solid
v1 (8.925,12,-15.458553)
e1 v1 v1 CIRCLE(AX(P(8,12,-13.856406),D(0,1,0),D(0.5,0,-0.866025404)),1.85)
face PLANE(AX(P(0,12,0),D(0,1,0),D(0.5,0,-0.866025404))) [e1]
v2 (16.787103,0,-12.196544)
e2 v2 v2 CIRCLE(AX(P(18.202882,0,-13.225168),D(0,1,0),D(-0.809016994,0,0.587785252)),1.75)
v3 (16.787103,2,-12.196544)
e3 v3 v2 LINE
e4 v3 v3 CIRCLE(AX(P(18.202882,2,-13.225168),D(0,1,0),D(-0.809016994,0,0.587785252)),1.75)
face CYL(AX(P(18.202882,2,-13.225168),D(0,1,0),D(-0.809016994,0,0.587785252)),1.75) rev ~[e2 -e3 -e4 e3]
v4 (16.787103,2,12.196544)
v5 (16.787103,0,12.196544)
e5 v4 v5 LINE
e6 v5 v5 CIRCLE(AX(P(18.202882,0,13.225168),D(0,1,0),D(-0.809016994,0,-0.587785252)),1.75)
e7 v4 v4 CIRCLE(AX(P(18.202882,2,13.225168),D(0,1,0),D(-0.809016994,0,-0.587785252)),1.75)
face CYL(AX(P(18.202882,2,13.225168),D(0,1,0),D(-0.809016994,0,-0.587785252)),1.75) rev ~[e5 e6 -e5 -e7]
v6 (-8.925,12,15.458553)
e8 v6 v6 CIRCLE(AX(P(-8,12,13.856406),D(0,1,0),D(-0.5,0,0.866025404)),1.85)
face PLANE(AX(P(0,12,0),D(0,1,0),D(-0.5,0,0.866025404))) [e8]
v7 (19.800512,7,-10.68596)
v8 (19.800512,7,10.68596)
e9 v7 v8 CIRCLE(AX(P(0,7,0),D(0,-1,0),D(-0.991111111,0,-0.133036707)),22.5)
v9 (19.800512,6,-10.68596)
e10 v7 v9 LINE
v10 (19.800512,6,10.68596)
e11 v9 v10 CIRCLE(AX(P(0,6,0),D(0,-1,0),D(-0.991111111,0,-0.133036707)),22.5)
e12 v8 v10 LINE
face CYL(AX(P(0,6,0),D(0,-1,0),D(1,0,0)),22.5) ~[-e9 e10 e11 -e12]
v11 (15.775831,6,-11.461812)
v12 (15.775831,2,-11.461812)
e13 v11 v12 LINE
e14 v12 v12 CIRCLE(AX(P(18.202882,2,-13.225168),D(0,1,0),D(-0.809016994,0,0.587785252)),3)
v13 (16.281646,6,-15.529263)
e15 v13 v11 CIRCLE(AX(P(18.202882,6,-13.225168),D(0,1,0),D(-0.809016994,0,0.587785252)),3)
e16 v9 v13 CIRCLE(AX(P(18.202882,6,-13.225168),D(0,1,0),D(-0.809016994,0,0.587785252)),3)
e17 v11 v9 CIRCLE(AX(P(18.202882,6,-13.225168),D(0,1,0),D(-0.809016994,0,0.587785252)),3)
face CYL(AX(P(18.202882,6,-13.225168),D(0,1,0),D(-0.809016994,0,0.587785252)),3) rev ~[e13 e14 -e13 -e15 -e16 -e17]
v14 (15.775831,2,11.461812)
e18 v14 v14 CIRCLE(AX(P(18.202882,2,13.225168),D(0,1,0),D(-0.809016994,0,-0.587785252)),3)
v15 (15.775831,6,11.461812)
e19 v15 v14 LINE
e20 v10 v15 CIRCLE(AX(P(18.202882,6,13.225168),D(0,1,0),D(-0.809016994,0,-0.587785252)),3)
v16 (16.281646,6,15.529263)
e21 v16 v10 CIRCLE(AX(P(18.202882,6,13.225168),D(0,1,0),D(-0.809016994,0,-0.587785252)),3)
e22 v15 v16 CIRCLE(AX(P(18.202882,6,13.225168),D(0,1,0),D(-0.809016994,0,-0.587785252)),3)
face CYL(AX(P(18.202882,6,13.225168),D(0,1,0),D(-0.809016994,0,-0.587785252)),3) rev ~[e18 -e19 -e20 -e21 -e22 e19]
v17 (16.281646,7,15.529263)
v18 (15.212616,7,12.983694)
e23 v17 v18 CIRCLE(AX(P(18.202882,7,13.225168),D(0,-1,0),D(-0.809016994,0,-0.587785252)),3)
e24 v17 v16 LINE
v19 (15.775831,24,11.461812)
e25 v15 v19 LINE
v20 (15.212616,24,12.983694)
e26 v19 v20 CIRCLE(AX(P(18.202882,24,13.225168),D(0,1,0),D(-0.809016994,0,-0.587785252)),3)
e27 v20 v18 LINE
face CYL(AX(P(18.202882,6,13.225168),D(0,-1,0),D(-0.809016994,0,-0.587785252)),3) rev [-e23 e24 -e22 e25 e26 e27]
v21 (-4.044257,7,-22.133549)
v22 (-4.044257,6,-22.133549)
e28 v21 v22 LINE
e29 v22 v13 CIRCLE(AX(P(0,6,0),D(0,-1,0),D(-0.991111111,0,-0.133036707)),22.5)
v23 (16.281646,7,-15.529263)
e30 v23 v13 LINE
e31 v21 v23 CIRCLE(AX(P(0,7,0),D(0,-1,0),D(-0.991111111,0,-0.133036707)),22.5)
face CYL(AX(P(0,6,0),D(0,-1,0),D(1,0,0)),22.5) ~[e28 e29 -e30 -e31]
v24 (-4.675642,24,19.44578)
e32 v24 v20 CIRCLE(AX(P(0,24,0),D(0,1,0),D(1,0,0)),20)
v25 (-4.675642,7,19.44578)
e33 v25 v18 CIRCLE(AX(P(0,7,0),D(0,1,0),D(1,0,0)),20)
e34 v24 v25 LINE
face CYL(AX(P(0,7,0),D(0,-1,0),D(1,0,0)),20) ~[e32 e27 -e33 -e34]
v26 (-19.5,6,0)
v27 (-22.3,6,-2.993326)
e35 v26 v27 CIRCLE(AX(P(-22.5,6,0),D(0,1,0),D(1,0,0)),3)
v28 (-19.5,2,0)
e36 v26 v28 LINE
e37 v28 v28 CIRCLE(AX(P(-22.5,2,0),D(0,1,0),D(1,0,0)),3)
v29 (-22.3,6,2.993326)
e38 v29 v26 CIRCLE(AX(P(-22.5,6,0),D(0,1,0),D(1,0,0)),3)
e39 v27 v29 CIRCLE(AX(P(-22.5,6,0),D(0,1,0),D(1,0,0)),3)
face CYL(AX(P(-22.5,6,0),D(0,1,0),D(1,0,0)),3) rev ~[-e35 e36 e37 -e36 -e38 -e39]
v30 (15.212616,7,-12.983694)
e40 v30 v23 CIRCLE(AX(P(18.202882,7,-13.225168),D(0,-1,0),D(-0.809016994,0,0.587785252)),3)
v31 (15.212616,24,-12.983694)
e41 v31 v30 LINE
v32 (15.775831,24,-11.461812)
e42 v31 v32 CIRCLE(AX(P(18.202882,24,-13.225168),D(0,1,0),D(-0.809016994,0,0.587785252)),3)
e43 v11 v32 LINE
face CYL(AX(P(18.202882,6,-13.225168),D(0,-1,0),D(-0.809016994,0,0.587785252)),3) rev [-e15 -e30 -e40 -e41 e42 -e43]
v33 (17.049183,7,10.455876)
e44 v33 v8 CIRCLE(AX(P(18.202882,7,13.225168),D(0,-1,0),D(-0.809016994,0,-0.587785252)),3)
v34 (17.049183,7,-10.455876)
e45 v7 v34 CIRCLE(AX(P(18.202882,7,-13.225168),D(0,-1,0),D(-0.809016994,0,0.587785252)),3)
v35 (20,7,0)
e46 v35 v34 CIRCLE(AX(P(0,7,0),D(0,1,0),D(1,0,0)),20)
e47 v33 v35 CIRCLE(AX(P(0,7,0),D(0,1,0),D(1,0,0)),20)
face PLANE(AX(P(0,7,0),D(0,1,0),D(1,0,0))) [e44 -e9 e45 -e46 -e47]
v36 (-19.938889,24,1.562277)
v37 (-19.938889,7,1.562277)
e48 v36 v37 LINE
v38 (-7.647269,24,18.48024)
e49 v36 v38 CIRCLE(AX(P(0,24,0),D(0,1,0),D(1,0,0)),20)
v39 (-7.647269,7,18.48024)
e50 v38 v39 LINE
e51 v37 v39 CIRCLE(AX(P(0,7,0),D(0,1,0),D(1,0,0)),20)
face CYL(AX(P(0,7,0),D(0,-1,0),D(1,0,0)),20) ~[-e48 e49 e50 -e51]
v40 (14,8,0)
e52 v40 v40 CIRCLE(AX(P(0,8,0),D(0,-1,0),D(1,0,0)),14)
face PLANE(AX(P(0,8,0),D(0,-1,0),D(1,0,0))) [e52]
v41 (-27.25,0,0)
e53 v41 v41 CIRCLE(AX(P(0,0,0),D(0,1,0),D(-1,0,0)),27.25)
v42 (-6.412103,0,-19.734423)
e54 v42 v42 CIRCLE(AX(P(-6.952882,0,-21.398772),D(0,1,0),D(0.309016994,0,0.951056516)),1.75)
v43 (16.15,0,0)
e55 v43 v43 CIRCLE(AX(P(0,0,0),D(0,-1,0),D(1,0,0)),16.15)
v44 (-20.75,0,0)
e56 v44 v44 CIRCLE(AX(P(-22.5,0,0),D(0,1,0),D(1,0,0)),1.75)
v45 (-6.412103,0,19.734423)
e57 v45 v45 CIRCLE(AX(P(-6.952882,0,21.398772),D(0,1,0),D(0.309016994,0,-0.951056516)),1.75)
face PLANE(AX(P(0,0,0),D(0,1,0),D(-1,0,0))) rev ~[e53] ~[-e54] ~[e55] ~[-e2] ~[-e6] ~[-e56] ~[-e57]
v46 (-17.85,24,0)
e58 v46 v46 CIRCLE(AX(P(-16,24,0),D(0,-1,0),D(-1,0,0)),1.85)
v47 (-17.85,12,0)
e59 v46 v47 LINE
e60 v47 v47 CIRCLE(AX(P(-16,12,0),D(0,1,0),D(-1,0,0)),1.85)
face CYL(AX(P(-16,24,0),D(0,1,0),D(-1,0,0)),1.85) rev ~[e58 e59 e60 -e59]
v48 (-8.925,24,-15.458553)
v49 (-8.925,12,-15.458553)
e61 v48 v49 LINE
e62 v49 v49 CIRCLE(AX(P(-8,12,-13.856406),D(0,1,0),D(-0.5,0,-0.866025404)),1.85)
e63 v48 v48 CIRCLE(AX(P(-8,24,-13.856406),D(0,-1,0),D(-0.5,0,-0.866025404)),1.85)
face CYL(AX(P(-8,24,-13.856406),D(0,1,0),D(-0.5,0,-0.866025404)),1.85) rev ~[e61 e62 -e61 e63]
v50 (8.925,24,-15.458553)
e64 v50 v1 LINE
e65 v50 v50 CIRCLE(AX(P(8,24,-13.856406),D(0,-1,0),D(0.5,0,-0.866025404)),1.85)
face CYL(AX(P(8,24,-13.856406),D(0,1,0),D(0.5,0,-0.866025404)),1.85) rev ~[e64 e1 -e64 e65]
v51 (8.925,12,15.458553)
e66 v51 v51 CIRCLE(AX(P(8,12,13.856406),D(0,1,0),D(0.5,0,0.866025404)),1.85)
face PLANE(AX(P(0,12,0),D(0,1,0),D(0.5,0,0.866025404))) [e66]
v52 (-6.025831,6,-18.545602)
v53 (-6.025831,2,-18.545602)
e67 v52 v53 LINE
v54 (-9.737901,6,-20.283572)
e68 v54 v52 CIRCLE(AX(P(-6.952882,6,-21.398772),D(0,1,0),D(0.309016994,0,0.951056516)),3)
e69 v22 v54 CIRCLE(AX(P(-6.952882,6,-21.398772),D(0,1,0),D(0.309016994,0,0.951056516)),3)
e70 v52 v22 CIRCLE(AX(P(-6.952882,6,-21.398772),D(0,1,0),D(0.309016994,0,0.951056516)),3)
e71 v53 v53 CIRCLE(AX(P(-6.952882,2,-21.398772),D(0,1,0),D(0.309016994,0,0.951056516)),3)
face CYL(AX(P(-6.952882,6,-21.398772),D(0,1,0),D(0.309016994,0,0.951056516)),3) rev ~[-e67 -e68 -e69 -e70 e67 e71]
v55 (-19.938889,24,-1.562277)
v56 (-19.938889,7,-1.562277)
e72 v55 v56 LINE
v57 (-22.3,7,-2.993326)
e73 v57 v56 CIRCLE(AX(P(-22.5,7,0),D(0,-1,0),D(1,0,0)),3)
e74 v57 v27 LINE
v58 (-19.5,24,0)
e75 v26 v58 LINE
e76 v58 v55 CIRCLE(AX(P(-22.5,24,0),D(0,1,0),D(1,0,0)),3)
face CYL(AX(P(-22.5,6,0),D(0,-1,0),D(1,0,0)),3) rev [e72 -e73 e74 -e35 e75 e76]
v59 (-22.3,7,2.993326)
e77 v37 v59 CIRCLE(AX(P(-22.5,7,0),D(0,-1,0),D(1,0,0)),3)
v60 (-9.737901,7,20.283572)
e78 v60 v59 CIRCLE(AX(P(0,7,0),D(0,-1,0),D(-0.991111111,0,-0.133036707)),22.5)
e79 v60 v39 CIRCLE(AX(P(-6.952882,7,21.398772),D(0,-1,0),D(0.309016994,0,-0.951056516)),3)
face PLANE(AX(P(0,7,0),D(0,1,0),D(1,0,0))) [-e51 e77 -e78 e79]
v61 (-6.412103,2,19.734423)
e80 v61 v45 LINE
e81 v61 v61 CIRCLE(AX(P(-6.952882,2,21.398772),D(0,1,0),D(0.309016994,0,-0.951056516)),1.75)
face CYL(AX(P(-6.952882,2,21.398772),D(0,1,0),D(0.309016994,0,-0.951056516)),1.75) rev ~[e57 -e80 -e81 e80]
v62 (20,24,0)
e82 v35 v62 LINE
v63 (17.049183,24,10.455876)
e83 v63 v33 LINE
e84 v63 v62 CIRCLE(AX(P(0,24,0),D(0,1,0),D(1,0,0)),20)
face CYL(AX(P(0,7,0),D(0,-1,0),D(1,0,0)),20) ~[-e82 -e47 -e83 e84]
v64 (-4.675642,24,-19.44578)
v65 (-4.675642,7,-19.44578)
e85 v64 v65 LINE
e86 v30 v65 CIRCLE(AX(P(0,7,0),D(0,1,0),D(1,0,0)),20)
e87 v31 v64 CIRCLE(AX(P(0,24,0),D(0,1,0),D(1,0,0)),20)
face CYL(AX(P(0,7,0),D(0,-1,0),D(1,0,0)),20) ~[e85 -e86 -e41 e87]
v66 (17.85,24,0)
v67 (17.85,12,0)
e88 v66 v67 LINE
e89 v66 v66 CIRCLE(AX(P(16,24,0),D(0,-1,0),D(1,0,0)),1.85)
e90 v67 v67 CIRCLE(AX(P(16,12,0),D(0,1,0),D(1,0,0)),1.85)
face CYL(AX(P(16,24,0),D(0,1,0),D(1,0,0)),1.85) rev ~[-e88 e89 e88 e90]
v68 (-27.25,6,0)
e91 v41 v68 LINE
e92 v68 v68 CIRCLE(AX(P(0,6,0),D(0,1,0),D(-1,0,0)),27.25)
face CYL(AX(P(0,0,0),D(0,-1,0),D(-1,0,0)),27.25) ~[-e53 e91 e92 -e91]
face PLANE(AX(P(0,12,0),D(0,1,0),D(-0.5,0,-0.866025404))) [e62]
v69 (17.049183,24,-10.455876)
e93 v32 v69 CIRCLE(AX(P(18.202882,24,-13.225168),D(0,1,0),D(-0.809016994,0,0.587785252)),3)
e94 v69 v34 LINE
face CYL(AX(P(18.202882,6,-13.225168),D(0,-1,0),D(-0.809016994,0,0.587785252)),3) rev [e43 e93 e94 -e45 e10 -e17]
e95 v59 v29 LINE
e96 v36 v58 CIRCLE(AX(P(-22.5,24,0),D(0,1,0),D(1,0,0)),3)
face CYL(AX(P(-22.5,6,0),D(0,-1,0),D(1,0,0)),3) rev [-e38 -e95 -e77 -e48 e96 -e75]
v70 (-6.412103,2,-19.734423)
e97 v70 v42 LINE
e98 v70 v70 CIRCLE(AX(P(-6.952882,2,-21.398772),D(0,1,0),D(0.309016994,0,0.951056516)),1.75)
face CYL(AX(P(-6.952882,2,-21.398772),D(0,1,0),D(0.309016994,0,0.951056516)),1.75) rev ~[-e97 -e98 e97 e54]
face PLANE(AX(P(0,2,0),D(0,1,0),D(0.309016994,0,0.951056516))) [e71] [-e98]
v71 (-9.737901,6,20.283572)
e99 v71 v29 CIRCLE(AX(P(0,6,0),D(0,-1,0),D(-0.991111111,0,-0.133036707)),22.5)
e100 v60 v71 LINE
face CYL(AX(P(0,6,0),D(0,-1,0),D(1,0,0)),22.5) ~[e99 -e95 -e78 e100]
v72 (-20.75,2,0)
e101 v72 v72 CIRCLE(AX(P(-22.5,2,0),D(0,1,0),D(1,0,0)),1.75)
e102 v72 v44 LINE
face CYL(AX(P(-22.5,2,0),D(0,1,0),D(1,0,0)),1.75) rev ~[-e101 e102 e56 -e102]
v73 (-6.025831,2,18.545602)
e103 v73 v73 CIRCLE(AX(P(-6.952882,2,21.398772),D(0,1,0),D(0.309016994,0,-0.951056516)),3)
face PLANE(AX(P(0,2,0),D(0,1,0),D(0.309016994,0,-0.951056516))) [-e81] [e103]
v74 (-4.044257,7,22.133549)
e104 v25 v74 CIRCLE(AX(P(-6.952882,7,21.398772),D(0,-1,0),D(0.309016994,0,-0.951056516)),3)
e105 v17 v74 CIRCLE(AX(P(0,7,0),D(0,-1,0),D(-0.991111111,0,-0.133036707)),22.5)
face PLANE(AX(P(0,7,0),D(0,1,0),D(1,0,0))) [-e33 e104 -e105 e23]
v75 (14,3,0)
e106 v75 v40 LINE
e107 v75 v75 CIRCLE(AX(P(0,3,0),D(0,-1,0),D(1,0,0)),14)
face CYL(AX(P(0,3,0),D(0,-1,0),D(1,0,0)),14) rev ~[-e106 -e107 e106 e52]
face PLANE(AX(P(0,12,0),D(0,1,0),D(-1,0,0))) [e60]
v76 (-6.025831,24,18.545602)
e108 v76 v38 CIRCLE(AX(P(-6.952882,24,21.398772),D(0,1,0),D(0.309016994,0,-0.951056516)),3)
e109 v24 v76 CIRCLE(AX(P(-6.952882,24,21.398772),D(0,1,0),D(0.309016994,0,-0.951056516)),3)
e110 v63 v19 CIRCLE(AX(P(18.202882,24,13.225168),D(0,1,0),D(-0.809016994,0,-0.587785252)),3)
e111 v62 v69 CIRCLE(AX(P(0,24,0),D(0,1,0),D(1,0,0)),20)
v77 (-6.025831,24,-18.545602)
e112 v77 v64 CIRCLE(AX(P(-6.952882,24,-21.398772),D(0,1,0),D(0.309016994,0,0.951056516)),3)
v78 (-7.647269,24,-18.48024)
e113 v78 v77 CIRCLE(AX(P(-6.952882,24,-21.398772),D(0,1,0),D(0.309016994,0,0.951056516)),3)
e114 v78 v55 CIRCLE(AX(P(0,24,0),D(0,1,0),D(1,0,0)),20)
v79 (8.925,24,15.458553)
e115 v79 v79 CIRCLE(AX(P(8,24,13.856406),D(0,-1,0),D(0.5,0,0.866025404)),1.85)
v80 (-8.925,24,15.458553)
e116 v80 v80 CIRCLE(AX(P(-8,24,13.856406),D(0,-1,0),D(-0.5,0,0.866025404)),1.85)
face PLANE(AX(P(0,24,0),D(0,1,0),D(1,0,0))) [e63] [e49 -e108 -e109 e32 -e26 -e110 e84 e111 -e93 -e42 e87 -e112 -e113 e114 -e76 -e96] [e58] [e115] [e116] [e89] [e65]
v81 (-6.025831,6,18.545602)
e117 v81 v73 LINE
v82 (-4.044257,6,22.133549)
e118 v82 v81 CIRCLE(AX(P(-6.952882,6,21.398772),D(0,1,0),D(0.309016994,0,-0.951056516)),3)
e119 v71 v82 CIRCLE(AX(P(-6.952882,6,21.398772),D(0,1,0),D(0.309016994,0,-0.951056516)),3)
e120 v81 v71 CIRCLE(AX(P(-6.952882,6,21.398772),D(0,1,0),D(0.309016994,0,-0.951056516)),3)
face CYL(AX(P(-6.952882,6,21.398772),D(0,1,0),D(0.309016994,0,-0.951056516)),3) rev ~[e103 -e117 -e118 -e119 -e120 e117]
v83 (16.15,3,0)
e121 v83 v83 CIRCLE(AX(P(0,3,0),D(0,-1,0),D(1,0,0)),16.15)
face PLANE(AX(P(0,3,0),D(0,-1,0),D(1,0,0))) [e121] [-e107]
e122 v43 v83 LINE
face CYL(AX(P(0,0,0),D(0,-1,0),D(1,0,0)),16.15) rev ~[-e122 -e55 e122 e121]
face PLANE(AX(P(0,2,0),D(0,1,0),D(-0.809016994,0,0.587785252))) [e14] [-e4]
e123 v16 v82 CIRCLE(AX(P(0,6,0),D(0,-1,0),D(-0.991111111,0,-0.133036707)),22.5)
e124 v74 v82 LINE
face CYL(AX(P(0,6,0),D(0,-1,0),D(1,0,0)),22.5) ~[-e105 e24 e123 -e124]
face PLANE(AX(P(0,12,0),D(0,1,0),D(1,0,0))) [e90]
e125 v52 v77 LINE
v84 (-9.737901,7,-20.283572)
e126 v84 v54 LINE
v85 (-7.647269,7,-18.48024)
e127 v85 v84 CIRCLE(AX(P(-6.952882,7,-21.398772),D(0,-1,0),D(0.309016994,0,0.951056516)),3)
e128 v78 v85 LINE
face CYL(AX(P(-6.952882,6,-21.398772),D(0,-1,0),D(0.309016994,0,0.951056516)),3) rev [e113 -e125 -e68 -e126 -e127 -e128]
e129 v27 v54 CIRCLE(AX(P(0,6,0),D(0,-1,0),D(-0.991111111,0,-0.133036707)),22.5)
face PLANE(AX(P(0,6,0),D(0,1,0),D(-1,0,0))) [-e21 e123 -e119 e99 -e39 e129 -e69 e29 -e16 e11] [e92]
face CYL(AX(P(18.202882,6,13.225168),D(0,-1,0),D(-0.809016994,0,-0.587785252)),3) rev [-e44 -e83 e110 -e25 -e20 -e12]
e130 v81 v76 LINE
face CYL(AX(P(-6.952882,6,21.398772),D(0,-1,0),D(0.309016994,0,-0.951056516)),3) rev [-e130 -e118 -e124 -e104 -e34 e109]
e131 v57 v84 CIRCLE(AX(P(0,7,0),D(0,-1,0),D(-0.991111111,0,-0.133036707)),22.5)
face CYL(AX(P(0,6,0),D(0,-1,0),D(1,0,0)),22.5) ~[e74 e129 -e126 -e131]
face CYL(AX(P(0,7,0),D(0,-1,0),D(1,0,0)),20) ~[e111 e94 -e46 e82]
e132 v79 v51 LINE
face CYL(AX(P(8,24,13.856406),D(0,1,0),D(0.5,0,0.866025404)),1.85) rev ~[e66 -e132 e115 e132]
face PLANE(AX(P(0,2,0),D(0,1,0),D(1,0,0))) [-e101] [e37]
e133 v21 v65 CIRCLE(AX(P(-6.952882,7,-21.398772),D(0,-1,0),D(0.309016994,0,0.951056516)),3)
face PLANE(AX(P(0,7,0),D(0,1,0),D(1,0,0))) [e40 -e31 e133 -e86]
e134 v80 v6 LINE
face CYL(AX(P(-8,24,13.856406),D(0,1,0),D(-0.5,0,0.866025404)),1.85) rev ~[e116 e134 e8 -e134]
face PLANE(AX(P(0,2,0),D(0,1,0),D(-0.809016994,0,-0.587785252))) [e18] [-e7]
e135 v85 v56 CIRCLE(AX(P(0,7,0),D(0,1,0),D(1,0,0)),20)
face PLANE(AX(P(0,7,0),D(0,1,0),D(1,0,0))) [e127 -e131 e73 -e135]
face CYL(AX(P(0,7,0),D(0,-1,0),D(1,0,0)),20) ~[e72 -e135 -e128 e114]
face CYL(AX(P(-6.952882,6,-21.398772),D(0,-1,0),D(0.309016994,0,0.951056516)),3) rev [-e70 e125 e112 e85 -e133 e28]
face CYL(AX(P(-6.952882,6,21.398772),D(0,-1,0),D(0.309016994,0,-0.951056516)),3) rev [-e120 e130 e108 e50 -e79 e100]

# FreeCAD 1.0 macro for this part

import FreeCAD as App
import Part
import Sketcher

V = App.Vector

doc = App.newDocument("Part")
body = doc.addObject("PartDesign::Body", "Body")

# Sketch on XZ plane
sketch1 = body.newObject("Sketcher::SketchObject", "Sketch")
sketch1.AttachmentSupport = (doc.getObject("XZ_Plane"), [""])
sketch1.MapMode = "FlatFace"
sketch1.addGeometry(Part.Circle(V(0, 0, 0), V(0, 0, 1), 27), False)
sketch1.addConstraint([
    Sketcher.Constraint("Coincident", 0, 3, -1, 1),
    Sketcher.Constraint("Diameter", 0, 54.5),
])
pad1 = body.newObject("PartDesign::Pad", "Pad")
pad1.Profile = sketch1
pad1.Length = 6
pad1.Reversed = True

# Sketch on XZ plane
sketch2 = body.newObject("Sketcher::SketchObject", "Sketch001")
sketch2.AttachmentSupport = (doc.getObject("XZ_Plane"), [""])
sketch2.MapMode = "FlatFace"
sketch2.AttachmentOffset = App.Placement(V(0, 0, -6), App.Rotation())
sketch2.addGeometry(Part.Circle(V(0, 0, 0), V(0, 0, 1), 22), False)
sketch2.addConstraint([
    Sketcher.Constraint("Coincident", 0, 3, -1, 1),
    Sketcher.Constraint("Diameter", 0, 45.0),
])
pad2 = body.newObject("PartDesign::Pad", "Pad001")
pad2.Profile = sketch2
pad2.Length = 1
pad2.Reversed = True

# Sketch on XZ plane
sketch3 = body.newObject("Sketcher::SketchObject", "Sketch002")
sketch3.AttachmentSupport = (doc.getObject("XZ_Plane"), [""])
sketch3.MapMode = "FlatFace"
sketch3.AttachmentOffset = App.Placement(V(0, 0, -7), App.Rotation())
sketch3.addGeometry(Part.Circle(V(0, 0, 0), V(0, 0, 1), 20), False)
sketch3.addConstraint([
    Sketcher.Constraint("Coincident", 0, 3, -1, 1),
    Sketcher.Constraint("Diameter", 0, 40.0),
])
pad3 = body.newObject("PartDesign::Pad", "Pad002")
pad3.Profile = sketch3
pad3.Length = 17
pad3.Reversed = True

# Sketch on XZ plane
sketch4 = body.newObject("Sketcher::SketchObject", "Sketch003")
sketch4.AttachmentSupport = (doc.getObject("XZ_Plane"), [""])
sketch4.MapMode = "FlatFace"
sketch4.AttachmentOffset = App.Placement(V(0, 0, -6), App.Rotation())
sketch4.addGeometry(Part.Circle(V(-22.5, 0, 0), V(0, 0, 1), 3), False)
sketch4.addConstraint([
    Sketcher.Constraint("PointOnObject", 0, 3, -1),
    Sketcher.Constraint("Diameter", 0, 6.0),
    Sketcher.Constraint("DistanceX", 0, 3, -1, 1, 22.5),
])
pocket1 = body.newObject("PartDesign::Pocket", "Pocket")
pocket1.Profile = sketch4
pocket1.Type = "TwoLengths"
pocket1.Length = 18
pocket1.Length2 = 4

# Sketch on XZ plane
sketch5 = body.newObject("Sketcher::SketchObject", "Sketch004")
sketch5.AttachmentSupport = (doc.getObject("XZ_Plane"), [""])
sketch5.MapMode = "FlatFace"
sketch5.AttachmentOffset = App.Placement(V(0, 0, -2), App.Rotation())
sketch5.addGeometry(Part.Circle(V(-22.5, 0, 0), V(0, 0, 1), 1.8), False)
sketch5.addConstraint([
    Sketcher.Constraint("PointOnObject", 0, 3, -1),
    Sketcher.Constraint("Diameter", 0, 3.5),
    Sketcher.Constraint("DistanceX", 0, 3, -1, 1, 22.5),
])
pocket2 = body.newObject("PartDesign::Pocket", "Pocket001")
pocket2.Profile = sketch5
pocket2.Length = 2
pocket2.Reversed = True
doc.recompute()

polarpattern = body.newObject("PartDesign::PolarPattern", "PolarPattern")
polarpattern.Originals = [pocket1, pocket2]
polarpattern.Axis = (doc.getObject("Y_Axis"), [""])
polarpattern.Angle = 360
polarpattern.Occurrences = 5
body.Tip = polarpattern

# Sketch on XZ plane
sketch6 = body.newObject("Sketcher::SketchObject", "Sketch005")
sketch6.AttachmentSupport = (doc.getObject("XZ_Plane"), [""])
sketch6.MapMode = "FlatFace"
sketch6.addGeometry(Part.Circle(V(0, 0, 0), V(0, 0, 1), 16), False)
sketch6.addConstraint([
    Sketcher.Constraint("Coincident", 0, 3, -1, 1),
    Sketcher.Constraint("Diameter", 0, 32.3),
])
pocket3 = body.newObject("PartDesign::Pocket", "Pocket002")
pocket3.Profile = sketch6
pocket3.Length = 3

# Sketch on XZ plane
sketch7 = body.newObject("Sketcher::SketchObject", "Sketch006")
sketch7.AttachmentSupport = (doc.getObject("XZ_Plane"), [""])
sketch7.MapMode = "FlatFace"
sketch7.AttachmentOffset = App.Placement(V(0, 0, -3), App.Rotation())
sketch7.addGeometry(Part.Circle(V(0, 0, 0), V(0, 0, 1), 14), False)
sketch7.addConstraint([
    Sketcher.Constraint("Coincident", 0, 3, -1, 1),
    Sketcher.Constraint("Diameter", 0, 28.0),
])
pocket4 = body.newObject("PartDesign::Pocket", "Pocket003")
pocket4.Profile = sketch7
pocket4.Length = 5

# Sketch on XZ plane
sketch8 = body.newObject("Sketcher::SketchObject", "Sketch007")
sketch8.AttachmentSupport = (doc.getObject("XZ_Plane"), [""])
sketch8.MapMode = "FlatFace"
sketch8.AttachmentOffset = App.Placement(V(0, 0, -24), App.Rotation())
sketch8.addGeometry(Part.Circle(V(16, 0, 0), V(0, 0, 1), 1.9), False)
sketch8.addConstraint([
    Sketcher.Constraint("PointOnObject", 0, 3, -1),
    Sketcher.Constraint("Diameter", 0, 3.7),
    Sketcher.Constraint("DistanceX", -1, 1, 0, 3, 16.0),
])
pocket5 = body.newObject("PartDesign::Pocket", "Pocket004")
pocket5.Profile = sketch8
pocket5.Length = 12
pocket5.Reversed = True
doc.recompute()

polarpattern2 = body.newObject("PartDesign::PolarPattern", "PolarPattern001")
polarpattern2.Originals = [pocket5]
polarpattern2.Axis = (doc.getObject("Y_Axis"), [""])
polarpattern2.Angle = 360
polarpattern2.Occurrences = 6
body.Tip = polarpattern2

doc.recompute()
